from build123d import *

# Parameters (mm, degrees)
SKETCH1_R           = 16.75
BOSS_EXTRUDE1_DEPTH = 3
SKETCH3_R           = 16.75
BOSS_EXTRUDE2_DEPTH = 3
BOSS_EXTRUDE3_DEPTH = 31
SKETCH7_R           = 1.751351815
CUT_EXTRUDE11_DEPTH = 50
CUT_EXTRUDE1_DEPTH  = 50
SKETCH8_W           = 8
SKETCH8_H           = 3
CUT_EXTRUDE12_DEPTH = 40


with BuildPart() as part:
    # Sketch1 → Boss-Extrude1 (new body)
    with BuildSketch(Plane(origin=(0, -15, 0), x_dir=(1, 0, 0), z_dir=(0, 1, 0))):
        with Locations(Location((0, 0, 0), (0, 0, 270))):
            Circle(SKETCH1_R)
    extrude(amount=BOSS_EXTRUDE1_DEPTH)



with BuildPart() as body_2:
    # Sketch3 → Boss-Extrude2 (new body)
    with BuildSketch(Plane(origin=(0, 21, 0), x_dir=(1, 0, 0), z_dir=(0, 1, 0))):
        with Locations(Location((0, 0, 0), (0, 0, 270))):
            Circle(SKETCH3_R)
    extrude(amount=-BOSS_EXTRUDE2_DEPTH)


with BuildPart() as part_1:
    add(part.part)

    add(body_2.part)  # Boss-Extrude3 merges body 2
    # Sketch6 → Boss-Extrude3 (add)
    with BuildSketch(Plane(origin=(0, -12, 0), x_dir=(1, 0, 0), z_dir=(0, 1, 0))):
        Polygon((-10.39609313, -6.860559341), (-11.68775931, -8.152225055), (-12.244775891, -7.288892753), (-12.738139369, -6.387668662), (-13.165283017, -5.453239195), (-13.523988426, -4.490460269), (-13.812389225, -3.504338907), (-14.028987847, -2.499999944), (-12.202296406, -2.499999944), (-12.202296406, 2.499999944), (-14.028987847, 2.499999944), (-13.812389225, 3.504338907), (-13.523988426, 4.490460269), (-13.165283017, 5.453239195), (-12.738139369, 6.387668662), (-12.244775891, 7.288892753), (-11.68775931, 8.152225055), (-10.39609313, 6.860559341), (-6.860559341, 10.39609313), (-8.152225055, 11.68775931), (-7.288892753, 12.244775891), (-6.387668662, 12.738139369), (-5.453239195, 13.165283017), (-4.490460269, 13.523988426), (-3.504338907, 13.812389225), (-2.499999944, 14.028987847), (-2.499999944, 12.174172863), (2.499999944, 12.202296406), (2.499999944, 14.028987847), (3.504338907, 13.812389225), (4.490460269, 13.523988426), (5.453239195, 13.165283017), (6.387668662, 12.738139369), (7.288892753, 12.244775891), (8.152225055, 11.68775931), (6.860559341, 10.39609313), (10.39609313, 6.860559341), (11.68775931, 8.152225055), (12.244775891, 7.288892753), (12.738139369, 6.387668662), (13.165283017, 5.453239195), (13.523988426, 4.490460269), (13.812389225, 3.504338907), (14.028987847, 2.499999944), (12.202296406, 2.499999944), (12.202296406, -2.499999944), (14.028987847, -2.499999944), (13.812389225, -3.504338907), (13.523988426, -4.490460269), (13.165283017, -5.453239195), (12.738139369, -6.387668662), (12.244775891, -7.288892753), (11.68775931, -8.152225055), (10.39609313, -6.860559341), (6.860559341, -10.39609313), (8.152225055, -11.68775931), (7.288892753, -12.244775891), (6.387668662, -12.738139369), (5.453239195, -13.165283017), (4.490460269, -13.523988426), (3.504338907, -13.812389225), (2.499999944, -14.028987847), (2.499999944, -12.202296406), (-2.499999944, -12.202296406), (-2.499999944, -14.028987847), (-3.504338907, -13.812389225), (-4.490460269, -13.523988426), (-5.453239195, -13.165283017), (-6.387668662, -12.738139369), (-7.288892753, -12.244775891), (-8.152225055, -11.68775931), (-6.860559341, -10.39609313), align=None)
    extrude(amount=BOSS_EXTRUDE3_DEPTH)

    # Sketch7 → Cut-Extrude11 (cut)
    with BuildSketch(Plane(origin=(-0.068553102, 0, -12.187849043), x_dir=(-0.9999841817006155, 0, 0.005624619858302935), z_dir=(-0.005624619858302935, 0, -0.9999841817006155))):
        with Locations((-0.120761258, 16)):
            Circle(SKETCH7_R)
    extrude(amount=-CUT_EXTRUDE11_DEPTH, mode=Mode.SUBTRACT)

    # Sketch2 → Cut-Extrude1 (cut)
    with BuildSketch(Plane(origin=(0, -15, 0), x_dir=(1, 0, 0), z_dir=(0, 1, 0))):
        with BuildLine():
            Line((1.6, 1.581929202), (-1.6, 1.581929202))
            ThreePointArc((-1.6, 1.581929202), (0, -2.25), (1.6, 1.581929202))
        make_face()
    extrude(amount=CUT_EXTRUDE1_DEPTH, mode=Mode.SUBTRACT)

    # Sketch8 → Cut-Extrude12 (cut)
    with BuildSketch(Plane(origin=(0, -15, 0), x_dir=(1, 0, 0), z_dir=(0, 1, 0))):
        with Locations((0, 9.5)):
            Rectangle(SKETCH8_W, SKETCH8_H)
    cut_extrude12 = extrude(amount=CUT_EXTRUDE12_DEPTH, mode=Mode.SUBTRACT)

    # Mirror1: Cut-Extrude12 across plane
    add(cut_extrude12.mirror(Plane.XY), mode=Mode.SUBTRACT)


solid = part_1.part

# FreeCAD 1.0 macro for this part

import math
import FreeCAD as App
import Part
import Sketcher

doc = App.newDocument("Part")
body = doc.addObject("PartDesign::Body", "Body")

# Sketch on XZ plane
sketch1 = body.newObject("Sketcher::SketchObject", "Sketch")
sketch1.AttachmentSupport = (doc.getObject("XZ_Plane"), [""])
sketch1.MapMode = "FlatFace"
sketch1.AttachmentOffset = App.Placement(App.Vector(0, 0, 15), App.Rotation())
sketch1.addGeometry(Part.Circle(App.Vector(0, 0, 0), App.Vector(0, 0, 1), 17), False)
sketch1.addConstraint([
    Sketcher.Constraint("Coincident", 0, 3, -1, 1),
    Sketcher.Constraint("Diameter", 0, 33.5),
])
pad1 = body.newObject("PartDesign::Pad", "Pad")
pad1.Profile = sketch1
pad1.Length = 3
pad1.Reversed = True
body2 = doc.addObject("PartDesign::Body", "Body001")

# Sketch on XZ plane
sketch2 = body2.newObject("Sketcher::SketchObject", "Sketch001")
sketch2.AttachmentSupport = (doc.getObject("XZ_Plane001"), [""])
sketch2.MapMode = "FlatFace"
sketch2.AttachmentOffset = App.Placement(App.Vector(0, 0, -21), App.Rotation())
sketch2.addGeometry(Part.Circle(App.Vector(0, 0, 0), App.Vector(0, 0, 1), 17), False)
sketch2.addConstraint([
    Sketcher.Constraint("Coincident", 0, 3, -1, 1),
    Sketcher.Constraint("Diameter", 0, 33.5),
])
pad2 = body2.newObject("PartDesign::Pad", "Pad001")
pad2.Profile = sketch2
pad2.Length = 3
body.AllowCompound = True
doc.recompute()

boolean = body.newObject("PartDesign::Boolean", "Boolean")
boolean.Type = "Fuse"
boolean.addObjects([body2])

# Sketch on XZ plane
sketch3 = body.newObject("Sketcher::SketchObject", "Sketch002")
sketch3.AttachmentSupport = (doc.getObject("XZ_Plane"), [""])
sketch3.MapMode = "FlatFace"
sketch3.AttachmentOffset = App.Placement(App.Vector(0, 0, 12), App.Rotation())
sketch3.addGeometry([
    Part.LineSegment(App.Vector(-11.687759, 8.152225, 0), App.Vector(-10.396093, 6.860559, 0)),  # 0
    Part.LineSegment(App.Vector(-10.396093, 6.860559, 0), App.Vector(-6.860559, 10.396093, 0)),  # 1
    Part.LineSegment(App.Vector(-6.860559, 10.396093, 0), App.Vector(-8.152225, 11.687759, 0)),  # 2
    Part.LineSegment(App.Vector(-8.152225, 11.687759, 0), App.Vector(-7.288893, 12.244776, 0)),  # 3
    Part.LineSegment(App.Vector(-7.288893, 12.244776, 0), App.Vector(-6.387669, 12.738139, 0)),  # 4
    Part.LineSegment(App.Vector(-6.387669, 12.738139, 0), App.Vector(-5.453239, 13.165283, 0)),  # 5
    Part.LineSegment(App.Vector(-5.453239, 13.165283, 0), App.Vector(-4.49046, 13.523988, 0)),  # 6
    Part.LineSegment(App.Vector(-4.49046, 13.523988, 0), App.Vector(-3.504339, 13.812389, 0)),  # 7
    Part.LineSegment(App.Vector(-3.504339, 13.812389, 0), App.Vector(-2.5, 14.028988, 0)),  # 8
    Part.LineSegment(App.Vector(-2.5, 14.028988, 0), App.Vector(-2.5, 12.202296, 0)),  # 9
    Part.LineSegment(App.Vector(-2.5, 12.202296, 0), App.Vector(2.5, 12.202296, 0)),  # 10
    Part.LineSegment(App.Vector(2.5, 12.202296, 0), App.Vector(2.5, 14.028988, 0)),  # 11
    Part.LineSegment(App.Vector(2.5, 14.028988, 0), App.Vector(3.504339, 13.812389, 0)),  # 12
    Part.LineSegment(App.Vector(3.504339, 13.812389, 0), App.Vector(4.49046, 13.523988, 0)),  # 13
    Part.LineSegment(App.Vector(4.49046, 13.523988, 0), App.Vector(5.453239, 13.165283, 0)),  # 14
    Part.LineSegment(App.Vector(5.453239, 13.165283, 0), App.Vector(6.387669, 12.738139, 0)),  # 15
    Part.LineSegment(App.Vector(6.387669, 12.738139, 0), App.Vector(7.288893, 12.244776, 0)),  # 16
    Part.LineSegment(App.Vector(7.288893, 12.244776, 0), App.Vector(8.152225, 11.687759, 0)),  # 17
    Part.LineSegment(App.Vector(8.152225, 11.687759, 0), App.Vector(6.860559, 10.396093, 0)),  # 18
    Part.LineSegment(App.Vector(6.860559, 10.396093, 0), App.Vector(10.396093, 6.860559, 0)),  # 19
    Part.LineSegment(App.Vector(10.396093, 6.860559, 0), App.Vector(11.687759, 8.152225, 0)),  # 20
    Part.LineSegment(App.Vector(11.687759, 8.152225, 0), App.Vector(12.244776, 7.288893, 0)),  # 21
    Part.LineSegment(App.Vector(12.244776, 7.288893, 0), App.Vector(12.738139, 6.387669, 0)),  # 22
    Part.LineSegment(App.Vector(12.738139, 6.387669, 0), App.Vector(13.165283, 5.453239, 0)),  # 23
    Part.LineSegment(App.Vector(13.165283, 5.453239, 0), App.Vector(13.523988, 4.49046, 0)),  # 24
    Part.LineSegment(App.Vector(13.523988, 4.49046, 0), App.Vector(13.812389, 3.504339, 0)),  # 25
    Part.LineSegment(App.Vector(13.812389, 3.504339, 0), App.Vector(14.028988, 2.5, 0)),  # 26
    Part.LineSegment(App.Vector(14.028988, 2.5, 0), App.Vector(12.202296, 2.5, 0)),  # 27
    Part.LineSegment(App.Vector(12.202296, 2.5, 0), App.Vector(12.202296, -2.5, 0)),  # 28
    Part.LineSegment(App.Vector(12.202296, -2.5, 0), App.Vector(14.028988, -2.5, 0)),  # 29
    Part.LineSegment(App.Vector(14.028988, -2.5, 0), App.Vector(13.812389, -3.504339, 0)),  # 30
    Part.LineSegment(App.Vector(13.812389, -3.504339, 0), App.Vector(13.523988, -4.49046, 0)),  # 31
    Part.LineSegment(App.Vector(13.523988, -4.49046, 0), App.Vector(13.165283, -5.453239, 0)),  # 32
    Part.LineSegment(App.Vector(13.165283, -5.453239, 0), App.Vector(12.738139, -6.387669, 0)),  # 33
    Part.LineSegment(App.Vector(12.738139, -6.387669, 0), App.Vector(12.244776, -7.288893, 0)),  # 34
    Part.LineSegment(App.Vector(12.244776, -7.288893, 0), App.Vector(11.687759, -8.152225, 0)),  # 35
    Part.LineSegment(App.Vector(11.687759, -8.152225, 0), App.Vector(10.396093, -6.860559, 0)),  # 36
    Part.LineSegment(App.Vector(10.396093, -6.860559, 0), App.Vector(6.860559, -10.396093, 0)),  # 37
    Part.LineSegment(App.Vector(6.860559, -10.396093, 0), App.Vector(8.152225, -11.687759, 0)),  # 38
    Part.LineSegment(App.Vector(8.152225, -11.687759, 0), App.Vector(7.288893, -12.244776, 0)),  # 39
    Part.LineSegment(App.Vector(7.288893, -12.244776, 0), App.Vector(6.387669, -12.738139, 0)),  # 40
    Part.LineSegment(App.Vector(6.387669, -12.738139, 0), App.Vector(5.453239, -13.165283, 0)),  # 41
    Part.LineSegment(App.Vector(5.453239, -13.165283, 0), App.Vector(4.49046, -13.523988, 0)),  # 42
    Part.LineSegment(App.Vector(4.49046, -13.523988, 0), App.Vector(3.504339, -13.812389, 0)),  # 43
    Part.LineSegment(App.Vector(3.504339, -13.812389, 0), App.Vector(2.5, -14.028988, 0)),  # 44
    Part.LineSegment(App.Vector(2.5, -14.028988, 0), App.Vector(2.5, -12.202296, 0)),  # 45
    Part.LineSegment(App.Vector(2.5, -12.202296, 0), App.Vector(-2.5, -12.174173, 0)),  # 46
    Part.LineSegment(App.Vector(-2.5, -12.174173, 0), App.Vector(-2.5, -14.028988, 0)),  # 47
    Part.LineSegment(App.Vector(-2.5, -14.028988, 0), App.Vector(-3.504339, -13.812389, 0)),  # 48
    Part.LineSegment(App.Vector(-3.504339, -13.812389, 0), App.Vector(-4.49046, -13.523988, 0)),  # 49
    Part.LineSegment(App.Vector(-4.49046, -13.523988, 0), App.Vector(-5.453239, -13.165283, 0)),  # 50
    Part.LineSegment(App.Vector(-5.453239, -13.165283, 0), App.Vector(-6.387669, -12.738139, 0)),  # 51
    Part.LineSegment(App.Vector(-6.387669, -12.738139, 0), App.Vector(-7.288893, -12.244776, 0)),  # 52
    Part.LineSegment(App.Vector(-7.288893, -12.244776, 0), App.Vector(-8.152225, -11.687759, 0)),  # 53
    Part.LineSegment(App.Vector(-8.152225, -11.687759, 0), App.Vector(-6.860559, -10.396093, 0)),  # 54
    Part.LineSegment(App.Vector(-6.860559, -10.396093, 0), App.Vector(-10.396093, -6.860559, 0)),  # 55
    Part.LineSegment(App.Vector(-10.396093, -6.860559, 0), App.Vector(-11.687759, -8.152225, 0)),  # 56
    Part.LineSegment(App.Vector(-11.687759, -8.152225, 0), App.Vector(-12.244776, -7.288893, 0)),  # 57
    Part.LineSegment(App.Vector(-12.244776, -7.288893, 0), App.Vector(-12.738139, -6.387669, 0)),  # 58
    Part.LineSegment(App.Vector(-12.738139, -6.387669, 0), App.Vector(-13.165283, -5.453239, 0)),  # 59
    Part.LineSegment(App.Vector(-13.165283, -5.453239, 0), App.Vector(-13.523988, -4.49046, 0)),  # 60
    Part.LineSegment(App.Vector(-13.523988, -4.49046, 0), App.Vector(-13.812389, -3.504339, 0)),  # 61
    Part.LineSegment(App.Vector(-13.812389, -3.504339, 0), App.Vector(-14.028988, -2.5, 0)),  # 62
    Part.LineSegment(App.Vector(-14.028988, -2.5, 0), App.Vector(-12.202296, -2.5, 0)),  # 63
    Part.LineSegment(App.Vector(-12.202296, -2.5, 0), App.Vector(-12.202296, 2.5, 0)),  # 64
    Part.LineSegment(App.Vector(-12.202296, 2.5, 0), App.Vector(-14.028988, 2.5, 0)),  # 65
    Part.LineSegment(App.Vector(-14.028988, 2.5, 0), App.Vector(-13.812389, 3.504339, 0)),  # 66
    Part.LineSegment(App.Vector(-13.812389, 3.504339, 0), App.Vector(-13.523988, 4.49046, 0)),  # 67
    Part.LineSegment(App.Vector(-13.523988, 4.49046, 0), App.Vector(-13.165283, 5.453239, 0)),  # 68
    Part.LineSegment(App.Vector(-13.165283, 5.453239, 0), App.Vector(-12.738139, 6.387669, 0)),  # 69
    Part.LineSegment(App.Vector(-12.738139, 6.387669, 0), App.Vector(-12.244776, 7.288893, 0)),  # 70
    Part.LineSegment(App.Vector(-12.244776, 7.288893, 0), App.Vector(-11.687759, 8.152225, 0)),  # 71
], False)
sketch3.addConstraint([
    Sketcher.Constraint("Coincident", 0, 2, 1, 1),
    Sketcher.Constraint("Coincident", 1, 2, 2, 1),
    Sketcher.Constraint("Coincident", 2, 2, 3, 1),
    Sketcher.Constraint("Coincident", 3, 2, 4, 1),
    Sketcher.Constraint("Coincident", 4, 2, 5, 1),
    Sketcher.Constraint("Coincident", 5, 2, 6, 1),
    Sketcher.Constraint("Coincident", 6, 2, 7, 1),
    Sketcher.Constraint("Coincident", 7, 2, 8, 1),
    Sketcher.Constraint("Coincident", 8, 2, 9, 1),
    Sketcher.Constraint("Coincident", 9, 2, 10, 1),
    Sketcher.Constraint("Coincident", 10, 2, 11, 1),
    Sketcher.Constraint("Coincident", 11, 2, 12, 1),
    Sketcher.Constraint("Coincident", 12, 2, 13, 1),
    Sketcher.Constraint("Coincident", 13, 2, 14, 1),
    Sketcher.Constraint("Coincident", 14, 2, 15, 1),
    Sketcher.Constraint("Coincident", 15, 2, 16, 1),
    Sketcher.Constraint("Coincident", 16, 2, 17, 1),
    Sketcher.Constraint("Coincident", 17, 2, 18, 1),
    Sketcher.Constraint("Coincident", 18, 2, 19, 1),
    Sketcher.Constraint("Coincident", 19, 2, 20, 1),
    Sketcher.Constraint("Coincident", 20, 2, 21, 1),
    Sketcher.Constraint("Coincident", 21, 2, 22, 1),
    Sketcher.Constraint("Coincident", 22, 2, 23, 1),
    Sketcher.Constraint("Coincident", 23, 2, 24, 1),
    Sketcher.Constraint("Coincident", 24, 2, 25, 1),
    Sketcher.Constraint("Coincident", 25, 2, 26, 1),
    Sketcher.Constraint("Coincident", 26, 2, 27, 1),
    Sketcher.Constraint("Coincident", 27, 2, 28, 1),
    Sketcher.Constraint("Coincident", 28, 2, 29, 1),
    Sketcher.Constraint("Coincident", 29, 2, 30, 1),
    Sketcher.Constraint("Coincident", 30, 2, 31, 1),
    Sketcher.Constraint("Coincident", 31, 2, 32, 1),
    Sketcher.Constraint("Coincident", 32, 2, 33, 1),
    Sketcher.Constraint("Coincident", 33, 2, 34, 1),
    Sketcher.Constraint("Coincident", 34, 2, 35, 1),
    Sketcher.Constraint("Coincident", 35, 2, 36, 1),
    Sketcher.Constraint("Coincident", 36, 2, 37, 1),
    Sketcher.Constraint("Coincident", 37, 2, 38, 1),
    Sketcher.Constraint("Coincident", 38, 2, 39, 1),
    Sketcher.Constraint("Coincident", 39, 2, 40, 1),
    Sketcher.Constraint("Coincident", 40, 2, 41, 1),
    Sketcher.Constraint("Coincident", 41, 2, 42, 1),
    Sketcher.Constraint("Coincident", 42, 2, 43, 1),
    Sketcher.Constraint("Coincident", 43, 2, 44, 1),
    Sketcher.Constraint("Coincident", 44, 2, 45, 1),
    Sketcher.Constraint("Coincident", 45, 2, 46, 1),
    Sketcher.Constraint("Coincident", 46, 2, 47, 1),
    Sketcher.Constraint("Coincident", 47, 2, 48, 1),
    Sketcher.Constraint("Coincident", 48, 2, 49, 1),
    Sketcher.Constraint("Coincident", 49, 2, 50, 1),
    Sketcher.Constraint("Coincident", 50, 2, 51, 1),
    Sketcher.Constraint("Coincident", 51, 2, 52, 1),
    Sketcher.Constraint("Coincident", 52, 2, 53, 1),
    Sketcher.Constraint("Coincident", 53, 2, 54, 1),
    Sketcher.Constraint("Coincident", 54, 2, 55, 1),
    Sketcher.Constraint("Coincident", 55, 2, 56, 1),
    Sketcher.Constraint("Coincident", 56, 2, 57, 1),
    Sketcher.Constraint("Coincident", 57, 2, 58, 1),
    Sketcher.Constraint("Coincident", 58, 2, 59, 1),
    Sketcher.Constraint("Coincident", 59, 2, 60, 1),
    Sketcher.Constraint("Coincident", 60, 2, 61, 1),
    Sketcher.Constraint("Coincident", 61, 2, 62, 1),
    Sketcher.Constraint("Coincident", 62, 2, 63, 1),
    Sketcher.Constraint("Coincident", 63, 2, 64, 1),
    Sketcher.Constraint("Coincident", 64, 2, 65, 1),
    Sketcher.Constraint("Coincident", 65, 2, 66, 1),
    Sketcher.Constraint("Coincident", 66, 2, 67, 1),
    Sketcher.Constraint("Coincident", 67, 2, 68, 1),
    Sketcher.Constraint("Coincident", 68, 2, 69, 1),
    Sketcher.Constraint("Coincident", 69, 2, 70, 1),
    Sketcher.Constraint("Coincident", 70, 2, 71, 1),
    Sketcher.Constraint("Coincident", 71, 2, 0, 1),
    Sketcher.Constraint("Vertical", 9),
    Sketcher.Constraint("Horizontal", 10),
    Sketcher.Constraint("Vertical", 11),
    Sketcher.Constraint("Horizontal", 27),
    Sketcher.Constraint("Vertical", 28),
    Sketcher.Constraint("Horizontal", 29),
    Sketcher.Constraint("Vertical", 45),
    Sketcher.Constraint("Vertical", 47),
    Sketcher.Constraint("Horizontal", 63),
    Sketcher.Constraint("Vertical", 64),
    Sketcher.Constraint("Horizontal", 65),
    Sketcher.Constraint("Symmetric", 0, 2, 36, 2, -1, 1),
    Sketcher.Constraint("Symmetric", 1, 2, 37, 2, -1, 1),
    Sketcher.Constraint("Symmetric", 2, 2, 38, 2, -1, 1),
    Sketcher.Constraint("Symmetric", 3, 2, 39, 2, -1, 1),
    Sketcher.Constraint("Symmetric", 4, 2, 40, 2, -1, 1),
    Sketcher.Constraint("Symmetric", 5, 2, 41, 2, -1, 1),
    Sketcher.Constraint("Symmetric", 6, 2, 42, 2, -1, 1),
    Sketcher.Constraint("Symmetric", 7, 2, 43, 2, -1, 1),
    Sketcher.Constraint("Symmetric", 8, 2, 44, 2, -1, 1),
    Sketcher.Constraint("Symmetric", 11, 2, 47, 2, -1, 1),
    Sketcher.Constraint("Symmetric", 12, 2, 48, 2, -1, 1),
    Sketcher.Constraint("Symmetric", 13, 2, 49, 2, -1, 1),
    Sketcher.Constraint("Symmetric", 14, 2, 50, 2, -1, 1),
    Sketcher.Constraint("Symmetric", 15, 2, 51, 2, -1, 1),
    Sketcher.Constraint("Symmetric", 16, 2, 52, 2, -1, 1),
    Sketcher.Constraint("Symmetric", 17, 2, 53, 2, -1, 1),
    Sketcher.Constraint("Symmetric", 18, 2, 54, 2, -1, 1),
    Sketcher.Constraint("Symmetric", 19, 2, 55, 2, -1, 1),
    Sketcher.Constraint("Symmetric", 20, 2, 56, 2, -1, 1),
    Sketcher.Constraint("Symmetric", 21, 2, 57, 2, -1, 1),
    Sketcher.Constraint("Symmetric", 22, 2, 58, 2, -1, 1),
    Sketcher.Constraint("Symmetric", 23, 2, 59, 2, -1, 1),
    Sketcher.Constraint("Symmetric", 24, 2, 60, 2, -1, 1),
    Sketcher.Constraint("Symmetric", 25, 2, 61, 2, -1, 1),
    Sketcher.Constraint("Symmetric", 26, 2, 62, 2, -1, 1),
    Sketcher.Constraint("Symmetric", 28, 2, 64, 2, -1, 1),
    Sketcher.Constraint("Symmetric", 30, 2, 66, 2, -1, 1),
    Sketcher.Constraint("Symmetric", 31, 2, 67, 2, -1, 1),
    Sketcher.Constraint("Symmetric", 32, 2, 68, 2, -1, 1),
    Sketcher.Constraint("Symmetric", 33, 2, 69, 2, -1, 1),
    Sketcher.Constraint("Symmetric", 34, 2, 70, 2, -1, 1),
    Sketcher.Constraint("Symmetric", 35, 2, 71, 2, -1, 1),
    Sketcher.Constraint("Symmetric", 8, 2, 11, 2, -2),
    Sketcher.Constraint("Symmetric", 7, 2, 12, 2, -2),
    Sketcher.Constraint("Symmetric", 6, 2, 13, 2, -2),
    Sketcher.Constraint("Symmetric", 5, 2, 14, 2, -2),
    Sketcher.Constraint("Symmetric", 4, 2, 15, 2, -2),
    Sketcher.Constraint("Symmetric", 3, 2, 16, 2, -2),
    Sketcher.Constraint("Symmetric", 2, 2, 17, 2, -2),
    Sketcher.Constraint("Symmetric", 1, 2, 18, 2, -2),
    Sketcher.Constraint("Symmetric", 0, 2, 19, 2, -2),
    Sketcher.Constraint("Symmetric", 35, 2, 56, 2, -2),
    Sketcher.Constraint("Symmetric", 34, 2, 57, 2, -2),
    Sketcher.Constraint("Symmetric", 33, 2, 58, 2, -2),
    Sketcher.Constraint("Symmetric", 32, 2, 59, 2, -2),
    Sketcher.Constraint("Symmetric", 31, 2, 60, 2, -2),
    Sketcher.Constraint("Symmetric", 30, 2, 61, 2, -2),
    Sketcher.Constraint("Symmetric", 29, 2, 62, 2, -2),
    Sketcher.Constraint("Perpendicular", 0, 1),
    Sketcher.Constraint("Perpendicular", 1, 2),
    Sketcher.Constraint("Perpendicular", 2, 18),
    Sketcher.Constraint("Perpendicular", 3, 21),
    Sketcher.Constraint("Perpendicular", 4, 22),
    Sketcher.Constraint("Perpendicular", 5, 23),
    Sketcher.Constraint("Perpendicular", 6, 24),
    Sketcher.Constraint("Perpendicular", 7, 25),
    Sketcher.Constraint("Perpendicular", 8, 26),
    Sketcher.Constraint("Perpendicular", 48, 66),
    Sketcher.Constraint("Equal", 65, 9),
    Sketcher.Constraint("Equal", 10, 28),
    Sketcher.Constraint("Equal", 11, 45),
    Sketcher.Constraint("Equal", 0, 2),
    Sketcher.Constraint("Equal", 3, 4),
    Sketcher.Constraint("Equal", 4, 5),
    Sketcher.Constraint("Equal", 5, 6),
    Sketcher.Constraint("Equal", 6, 7),
    Sketcher.Constraint("Equal", 7, 8),
    Sketcher.Constraint("Equal", 17, 21),
    Sketcher.Constraint("Equal", 21, 22),
    Sketcher.Constraint("Equal", 22, 23),
    Sketcher.Constraint("Equal", 23, 24),
    Sketcher.Constraint("Equal", 24, 25),
    Sketcher.Constraint("Equal", 25, 26),
    Sketcher.Constraint("DistanceX", 10, 1, 10, 2, 5.0),
    Sketcher.Constraint("Distance", 1, 5.0),
    Sketcher.Constraint("DistanceX", 27, 2, 27, 1, 1.826691),
    Sketcher.Constraint("Distance", 0, 1.826692),
    Sketcher.Constraint("Distance", 3, 1.027429),
    Sketcher.Constraint("Distance", 46, 5.000079),
    Sketcher.Constraint("DistanceY", -1, 1, 0, 2, 6.860559),
    Sketcher.Constraint("DistanceX", 4, 2, -1, 1, 6.387669),
    Sketcher.Constraint("DistanceY", -1, 1, 4, 2, 12.738139),
    Sketcher.Constraint("DistanceX", 5, 2, -1, 1, 5.453239),
    Sketcher.Constraint("DistanceX", 6, 2, -1, 1, 4.49046),
    Sketcher.Constraint("DistanceX", 7, 2, -1, 1, 3.504339),
])
pad3 = body.newObject("PartDesign::Pad", "Pad002")
pad3.Profile = sketch3
pad3.Length = 31
pad3.Reversed = True

# Sketch on an angled plane
sketch4 = body.newObject("Sketcher::SketchObject", "Sketch003")
sketch4.Placement = App.Placement(App.Vector(-0.068553, 0, -12.187849), App.Rotation(App.Vector(-0.999984182, 0, 0.00562462), App.Vector(0, 1.000000001, 0), App.Vector(-0.00562462, 0, -0.999984182), "ZXY"))
sketch4.addGeometry(Part.Circle(App.Vector(-0.1, 16, 0), App.Vector(0, 0, 1), 1.8), False)
sketch4.addConstraint([
    Sketcher.Constraint("DistanceY", -1, 1, 0, 3, 16.0),
    Sketcher.Constraint("Diameter", 0, 3.502704),
    Sketcher.Constraint("DistanceX", 0, 3, -1, 1, 0.120761),
])
pocket1 = body.newObject("PartDesign::Pocket", "Pocket")
pocket1.Profile = sketch4
pocket1.Length = 50

# Sketch on XZ plane
sketch5 = body.newObject("Sketcher::SketchObject", "Sketch004")
sketch5.AttachmentSupport = (doc.getObject("XZ_Plane"), [""])
sketch5.MapMode = "FlatFace"
sketch5.AttachmentOffset = App.Placement(App.Vector(0, 0, 15), App.Rotation())
sketch5.addGeometry([
    Part.LineSegment(App.Vector(1.6, -1.6, 0), App.Vector(-1.6, -1.6, 0)),
    Part.ArcOfCircle(Part.Circle(App.Vector(0, 0, 0), App.Vector(0, 0, 1), 2.2), math.radians(-45), math.radians(225)),
], False)
sketch5.addConstraint([
    Sketcher.Constraint("Coincident", 0, 1, 1, 1),
    Sketcher.Constraint("Coincident", 1, 2, 0, 2),
    Sketcher.Constraint("Horizontal", 0),
    Sketcher.Constraint("Coincident", 1, 3, -1, 1),
    Sketcher.Constraint("Radius", 1, 2.25),
    Sketcher.Constraint("DistanceX", 0, 2, 0, 1, 3.2),
])
pocket2 = body.newObject("PartDesign::Pocket", "Pocket001")
pocket2.Profile = sketch5
pocket2.Length = 50

# Sketch on XZ plane
sketch6 = body.newObject("Sketcher::SketchObject", "Sketch005")
sketch6.AttachmentSupport = (doc.getObject("XZ_Plane"), [""])
sketch6.MapMode = "FlatFace"
sketch6.AttachmentOffset = App.Placement(App.Vector(0, 0, 15), App.Rotation())
sketch6.addGeometry([
    Part.LineSegment(App.Vector(-4, -11, 0), App.Vector(-4, -8, 0)),
    Part.LineSegment(App.Vector(-4, -8, 0), App.Vector(4, -8, 0)),
    Part.LineSegment(App.Vector(4, -8, 0), App.Vector(4, -11, 0)),
    Part.LineSegment(App.Vector(4, -11, 0), App.Vector(-4, -11, 0)),
], False)
sketch6.addConstraint([
    Sketcher.Constraint("Coincident", 0, 2, 1, 1),
    Sketcher.Constraint("Coincident", 1, 2, 2, 1),
    Sketcher.Constraint("Coincident", 2, 2, 3, 1),
    Sketcher.Constraint("Coincident", 3, 2, 0, 1),
    Sketcher.Constraint("Vertical", 0),
    Sketcher.Constraint("Horizontal", 1),
    Sketcher.Constraint("Vertical", 2),
    Sketcher.Constraint("Horizontal", 3),
    Sketcher.Constraint("DistanceX", 1, 1, 1, 2, 8.0),
    Sketcher.Constraint("DistanceY", 0, 1, 0, 2, 3.0),
    Sketcher.Constraint("DistanceX", 0, 2, -1, 1, 4.0),
    Sketcher.Constraint("DistanceY", 0, 2, -1, 1, 8.0),
])
pocket3 = body.newObject("PartDesign::Pocket", "Pocket002")
pocket3.Profile = sketch6
pocket3.Length = 40
doc.recompute()

mirrored = body.newObject("PartDesign::Mirrored", "Mirrored")
mirrored.Originals = [pocket3]
mirrored.MirrorPlane = (doc.getObject("XY_Plane"), [""])
body.Tip = mirrored

doc.recompute()
